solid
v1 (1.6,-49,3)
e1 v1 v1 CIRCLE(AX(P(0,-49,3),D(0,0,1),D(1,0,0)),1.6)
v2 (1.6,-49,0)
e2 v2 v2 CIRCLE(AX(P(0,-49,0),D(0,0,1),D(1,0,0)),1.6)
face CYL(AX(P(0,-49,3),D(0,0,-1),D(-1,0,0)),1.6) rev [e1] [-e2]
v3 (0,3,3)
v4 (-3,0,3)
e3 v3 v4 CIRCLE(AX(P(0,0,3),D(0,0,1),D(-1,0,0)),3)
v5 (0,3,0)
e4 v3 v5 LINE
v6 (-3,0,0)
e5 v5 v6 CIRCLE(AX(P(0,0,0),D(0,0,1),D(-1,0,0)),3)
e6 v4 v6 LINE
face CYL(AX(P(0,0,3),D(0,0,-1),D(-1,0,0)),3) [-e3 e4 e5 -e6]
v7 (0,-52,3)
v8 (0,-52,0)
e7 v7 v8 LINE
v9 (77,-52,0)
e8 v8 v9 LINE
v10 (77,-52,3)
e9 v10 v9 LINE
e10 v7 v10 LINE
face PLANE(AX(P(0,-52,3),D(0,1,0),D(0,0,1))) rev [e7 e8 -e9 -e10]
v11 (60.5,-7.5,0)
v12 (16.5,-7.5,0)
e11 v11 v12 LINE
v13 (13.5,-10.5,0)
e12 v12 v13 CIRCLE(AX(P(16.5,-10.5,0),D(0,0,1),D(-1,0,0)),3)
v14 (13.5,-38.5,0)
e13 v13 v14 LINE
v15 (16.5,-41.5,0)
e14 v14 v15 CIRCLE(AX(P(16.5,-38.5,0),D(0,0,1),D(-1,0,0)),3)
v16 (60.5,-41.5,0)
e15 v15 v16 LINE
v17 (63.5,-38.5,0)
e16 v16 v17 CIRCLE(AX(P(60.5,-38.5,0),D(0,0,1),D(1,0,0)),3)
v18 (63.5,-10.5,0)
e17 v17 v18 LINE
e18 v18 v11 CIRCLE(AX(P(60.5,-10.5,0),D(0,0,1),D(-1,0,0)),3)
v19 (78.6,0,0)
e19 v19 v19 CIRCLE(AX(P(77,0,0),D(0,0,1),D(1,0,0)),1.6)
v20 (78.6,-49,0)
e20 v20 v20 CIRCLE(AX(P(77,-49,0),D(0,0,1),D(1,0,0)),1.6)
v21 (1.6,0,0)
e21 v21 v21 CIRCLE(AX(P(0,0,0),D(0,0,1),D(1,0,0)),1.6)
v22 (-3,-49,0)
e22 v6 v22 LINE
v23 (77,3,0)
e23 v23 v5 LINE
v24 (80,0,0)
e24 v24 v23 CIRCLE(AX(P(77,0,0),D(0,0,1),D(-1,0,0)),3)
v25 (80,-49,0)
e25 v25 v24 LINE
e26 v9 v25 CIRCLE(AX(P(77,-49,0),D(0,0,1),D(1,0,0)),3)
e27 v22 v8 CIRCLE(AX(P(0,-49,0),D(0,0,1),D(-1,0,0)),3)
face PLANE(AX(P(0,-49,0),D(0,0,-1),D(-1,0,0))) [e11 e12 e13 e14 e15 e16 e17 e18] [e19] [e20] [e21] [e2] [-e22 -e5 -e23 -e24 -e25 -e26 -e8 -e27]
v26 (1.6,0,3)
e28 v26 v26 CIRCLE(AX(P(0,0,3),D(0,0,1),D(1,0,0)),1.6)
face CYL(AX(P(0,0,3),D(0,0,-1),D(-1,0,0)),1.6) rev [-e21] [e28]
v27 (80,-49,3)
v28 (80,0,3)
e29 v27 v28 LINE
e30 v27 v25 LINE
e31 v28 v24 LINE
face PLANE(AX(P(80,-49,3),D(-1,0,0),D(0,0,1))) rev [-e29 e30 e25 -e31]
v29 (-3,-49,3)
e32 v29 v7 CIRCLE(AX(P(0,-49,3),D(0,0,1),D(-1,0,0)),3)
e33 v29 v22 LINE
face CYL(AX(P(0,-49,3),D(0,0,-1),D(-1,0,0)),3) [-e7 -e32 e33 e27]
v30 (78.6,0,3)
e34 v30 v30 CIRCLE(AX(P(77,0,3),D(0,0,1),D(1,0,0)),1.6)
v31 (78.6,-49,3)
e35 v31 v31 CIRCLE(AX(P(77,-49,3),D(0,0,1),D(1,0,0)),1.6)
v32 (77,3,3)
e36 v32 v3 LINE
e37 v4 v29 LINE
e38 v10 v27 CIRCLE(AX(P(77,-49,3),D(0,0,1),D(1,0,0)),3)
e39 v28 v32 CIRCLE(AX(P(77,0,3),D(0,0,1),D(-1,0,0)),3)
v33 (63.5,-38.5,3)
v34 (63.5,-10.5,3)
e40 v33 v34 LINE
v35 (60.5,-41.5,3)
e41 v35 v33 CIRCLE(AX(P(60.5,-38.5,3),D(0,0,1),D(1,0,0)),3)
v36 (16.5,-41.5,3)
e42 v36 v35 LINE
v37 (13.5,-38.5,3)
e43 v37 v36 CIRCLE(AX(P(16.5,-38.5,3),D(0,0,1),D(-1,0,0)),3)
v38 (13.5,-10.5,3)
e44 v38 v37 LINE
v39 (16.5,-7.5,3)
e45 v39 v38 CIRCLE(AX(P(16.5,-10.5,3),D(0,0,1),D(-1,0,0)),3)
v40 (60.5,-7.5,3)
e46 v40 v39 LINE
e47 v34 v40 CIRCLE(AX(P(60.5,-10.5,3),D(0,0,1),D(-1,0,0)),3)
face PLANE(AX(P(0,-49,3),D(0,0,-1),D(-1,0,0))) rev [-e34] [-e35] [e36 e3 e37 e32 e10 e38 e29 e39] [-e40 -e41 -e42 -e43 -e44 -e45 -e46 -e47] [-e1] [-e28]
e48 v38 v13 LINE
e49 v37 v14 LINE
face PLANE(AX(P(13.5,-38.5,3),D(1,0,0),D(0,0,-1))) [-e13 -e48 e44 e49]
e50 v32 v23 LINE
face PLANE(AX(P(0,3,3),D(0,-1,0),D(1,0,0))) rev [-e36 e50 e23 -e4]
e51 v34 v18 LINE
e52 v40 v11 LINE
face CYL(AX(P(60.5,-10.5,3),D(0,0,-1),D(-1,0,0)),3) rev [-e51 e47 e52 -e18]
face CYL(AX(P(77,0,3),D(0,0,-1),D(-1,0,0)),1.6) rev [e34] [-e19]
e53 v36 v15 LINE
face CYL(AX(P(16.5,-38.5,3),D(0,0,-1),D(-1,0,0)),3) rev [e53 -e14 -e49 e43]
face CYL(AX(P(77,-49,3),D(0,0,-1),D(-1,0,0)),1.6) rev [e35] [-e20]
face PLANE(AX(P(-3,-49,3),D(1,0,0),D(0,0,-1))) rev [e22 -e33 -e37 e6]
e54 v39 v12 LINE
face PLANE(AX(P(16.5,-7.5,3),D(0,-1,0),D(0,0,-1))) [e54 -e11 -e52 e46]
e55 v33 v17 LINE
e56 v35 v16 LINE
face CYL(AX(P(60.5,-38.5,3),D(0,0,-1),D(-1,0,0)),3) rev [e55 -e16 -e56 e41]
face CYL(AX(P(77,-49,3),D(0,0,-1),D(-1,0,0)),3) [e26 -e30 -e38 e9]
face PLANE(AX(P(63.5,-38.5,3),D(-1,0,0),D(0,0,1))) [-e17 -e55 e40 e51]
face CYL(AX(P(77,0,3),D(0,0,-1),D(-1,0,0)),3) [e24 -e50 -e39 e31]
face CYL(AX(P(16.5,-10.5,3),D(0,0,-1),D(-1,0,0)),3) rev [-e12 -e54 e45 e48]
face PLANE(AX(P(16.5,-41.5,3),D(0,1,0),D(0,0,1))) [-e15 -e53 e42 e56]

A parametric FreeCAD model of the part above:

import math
import FreeCAD as App
import Part
import Sketcher

doc = App.newDocument("Part")
body = doc.addObject("PartDesign::Body", "Body")

sketch1 = body.newObject("Sketcher::SketchObject", "Sketch")
sketch1.AttachmentSupport = (doc.getObject("XY_Plane"), [""])
sketch1.MapMode = "FlatFace"
sketch1.addGeometry([
    Part.LineSegment(App.Vector(0, -52, 0), App.Vector(77, -52, 0)),
    Part.ArcOfCircle(Part.Circle(App.Vector(77, -49, 0), App.Vector(0, 0, 1), 3), math.radians(-90), math.radians(0)),
    Part.LineSegment(App.Vector(80, -49, 0), App.Vector(80, 0, 0)),
    Part.ArcOfCircle(Part.Circle(App.Vector(77, 0, 0), App.Vector(0, 0, 1), 3), math.radians(0), math.radians(90)),
    Part.LineSegment(App.Vector(77, 3, 0), App.Vector(0, 3, 0)),
    Part.ArcOfCircle(Part.Circle(App.Vector(0, 0, 0), App.Vector(0, 0, 1), 3), math.radians(90), math.radians(180)),
    Part.LineSegment(App.Vector(-3, 0, 0), App.Vector(-3, -49, 0)),
    Part.ArcOfCircle(Part.Circle(App.Vector(0, -49, 0), App.Vector(0, 0, 1), 3), math.radians(180), math.radians(270)),
    Part.Circle(App.Vector(0, -49, 0), App.Vector(0, 0, 1), 1.6),
    Part.Circle(App.Vector(77, -49, 0), App.Vector(0, 0, 1), 1.6),
    Part.Circle(App.Vector(0, 0, 0), App.Vector(0, 0, 1), 1.6),
    Part.LineSegment(App.Vector(60.5, -41.5, 0), App.Vector(16.5, -41.5, 0)),
    Part.ArcOfCircle(Part.Circle(App.Vector(16.5, -38.5, 0), App.Vector(0, 0, 1), 3), math.radians(180), math.radians(270)),
    Part.LineSegment(App.Vector(13.5, -38.5, 0), App.Vector(13.5, -10.5, 0)),
    Part.ArcOfCircle(Part.Circle(App.Vector(16.5, -10.5, 0), App.Vector(0, 0, 1), 3), math.radians(90), math.radians(180)),
    Part.LineSegment(App.Vector(16.5, -7.5, 0), App.Vector(60.5, -7.5, 0)),
    Part.ArcOfCircle(Part.Circle(App.Vector(60.5, -10.5, 0), App.Vector(0, 0, 1), 3), math.radians(0), math.radians(90)),
    Part.LineSegment(App.Vector(63.5, -10.5, 0), App.Vector(63.5, -38.5, 0)),
    Part.ArcOfCircle(Part.Circle(App.Vector(60.5, -38.5, 0), App.Vector(0, 0, 1), 3), math.radians(-90), math.radians(0)),
    Part.Circle(App.Vector(77, 0, 0), App.Vector(0, 0, 1), 1.6),
], False)
sketch1.addConstraint([
    Sketcher.Constraint("Tangent", 0, 2, 1, 1),
    Sketcher.Constraint("Tangent", 1, 2, 2, 1),
    Sketcher.Constraint("Tangent", 2, 2, 3, 1),
    Sketcher.Constraint("Tangent", 3, 2, 4, 1),
    Sketcher.Constraint("Tangent", 4, 2, 5, 1),
    Sketcher.Constraint("Tangent", 5, 2, 6, 1),
    Sketcher.Constraint("Tangent", 6, 2, 7, 1),
    Sketcher.Constraint("Tangent", 7, 2, 0, 1),
    Sketcher.Constraint("Tangent", 11, 2, 12, 2),
    Sketcher.Constraint("Tangent", 12, 1, 13, 1),
    Sketcher.Constraint("Tangent", 13, 2, 14, 2),
    Sketcher.Constraint("Tangent", 14, 1, 15, 1),
    Sketcher.Constraint("Tangent", 15, 2, 16, 2),
    Sketcher.Constraint("Tangent", 16, 1, 17, 1),
    Sketcher.Constraint("Tangent", 17, 2, 18, 2),
    Sketcher.Constraint("Tangent", 18, 1, 11, 1),
    Sketcher.Constraint("Horizontal", 0),
    Sketcher.Constraint("Vertical", 2),
    Sketcher.Constraint("Horizontal", 4),
    Sketcher.Constraint("Vertical", 6),
    Sketcher.Constraint("Horizontal", 11),
    Sketcher.Constraint("Vertical", 13),
    Sketcher.Constraint("Horizontal", 15),
    Sketcher.Constraint("Vertical", 17),
    Sketcher.Constraint("Coincident", 5, 3, -1, 1),
    Sketcher.Constraint("Coincident", 10, 3, -1, 1),
    Sketcher.Constraint("Coincident", 8, 3, 7, 3),
    Sketcher.Constraint("Coincident", 9, 3, 1, 3),
    Sketcher.Constraint("Coincident", 19, 3, 3, 3),
    Sketcher.Constraint("Equal", 1, 3),
    Sketcher.Constraint("Equal", 3, 5),
    Sketcher.Constraint("Equal", 5, 7),
    Sketcher.Constraint("Equal", 8, 9),
    Sketcher.Constraint("Equal", 9, 10),
    Sketcher.Constraint("Equal", 7, 12),
    Sketcher.Constraint("Equal", 12, 14),
    Sketcher.Constraint("Equal", 14, 16),
    Sketcher.Constraint("Equal", 16, 18),
    Sketcher.Constraint("Equal", 10, 19),
    Sketcher.Constraint("Radius", 1, 3.0),
    Sketcher.Constraint("Diameter", 8, 3.2),
    Sketcher.Constraint("DistanceX", 0, 1, 0, 2, 77.0),
    Sketcher.Constraint("DistanceX", 11, 2, 11, 1, 44.0),
    Sketcher.Constraint("DistanceY", 2, 1, 2, 2, 49.0),
    Sketcher.Constraint("DistanceY", 13, 1, 13, 2, 28.0),
    Sketcher.Constraint("DistanceX", -1, 1, 12, 3, 16.5),
    Sketcher.Constraint("DistanceY", 12, 3, -1, 1, 38.5),
])
pad1 = body.newObject("PartDesign::Pad", "Pad")
pad1.Profile = sketch1
pad1.Length = 3

doc.recompute()
